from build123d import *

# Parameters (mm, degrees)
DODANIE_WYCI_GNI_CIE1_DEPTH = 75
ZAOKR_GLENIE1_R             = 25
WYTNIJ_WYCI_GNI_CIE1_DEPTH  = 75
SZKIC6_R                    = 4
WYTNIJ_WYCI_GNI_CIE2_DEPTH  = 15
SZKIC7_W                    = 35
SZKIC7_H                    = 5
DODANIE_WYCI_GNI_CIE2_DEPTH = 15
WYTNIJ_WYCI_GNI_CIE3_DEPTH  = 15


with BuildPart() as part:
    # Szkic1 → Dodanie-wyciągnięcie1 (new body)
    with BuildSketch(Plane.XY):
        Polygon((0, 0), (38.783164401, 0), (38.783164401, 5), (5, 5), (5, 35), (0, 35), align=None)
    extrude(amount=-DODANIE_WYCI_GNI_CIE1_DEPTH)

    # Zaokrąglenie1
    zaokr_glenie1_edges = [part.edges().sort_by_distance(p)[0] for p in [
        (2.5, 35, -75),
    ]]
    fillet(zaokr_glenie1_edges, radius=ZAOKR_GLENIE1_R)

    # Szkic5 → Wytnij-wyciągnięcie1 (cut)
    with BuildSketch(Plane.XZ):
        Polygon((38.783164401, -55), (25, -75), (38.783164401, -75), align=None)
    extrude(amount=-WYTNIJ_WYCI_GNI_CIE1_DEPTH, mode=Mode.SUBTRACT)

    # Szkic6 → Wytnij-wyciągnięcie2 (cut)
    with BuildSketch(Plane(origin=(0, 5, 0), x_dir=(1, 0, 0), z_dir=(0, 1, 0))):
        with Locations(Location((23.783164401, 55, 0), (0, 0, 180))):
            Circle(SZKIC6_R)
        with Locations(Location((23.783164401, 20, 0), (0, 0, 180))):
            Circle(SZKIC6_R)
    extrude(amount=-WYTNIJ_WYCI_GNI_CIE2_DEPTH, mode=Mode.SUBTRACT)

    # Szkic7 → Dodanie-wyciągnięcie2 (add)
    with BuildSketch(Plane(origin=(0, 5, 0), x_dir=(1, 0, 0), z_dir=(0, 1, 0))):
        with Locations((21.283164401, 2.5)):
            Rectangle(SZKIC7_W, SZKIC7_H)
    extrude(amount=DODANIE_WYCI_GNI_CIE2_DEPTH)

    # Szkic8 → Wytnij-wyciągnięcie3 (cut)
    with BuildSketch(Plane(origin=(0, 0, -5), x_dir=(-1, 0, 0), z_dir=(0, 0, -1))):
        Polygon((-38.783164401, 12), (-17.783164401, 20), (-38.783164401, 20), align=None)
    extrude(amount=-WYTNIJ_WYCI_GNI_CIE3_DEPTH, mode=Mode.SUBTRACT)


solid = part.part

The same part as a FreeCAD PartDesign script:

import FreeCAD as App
import Part
import Sketcher


def edges_at(feature, points):
    """Names of the edges that pass closest to the given points."""
    edges = feature.Shape.Edges
    near = lambda p: min(range(len(edges)), key=lambda i: edges[i].distToShape(Part.Vertex(*p))[0])
    return sorted({f"Edge{near(p) + 1}" for p in points})


def add_polygon(sketch, points):
    """Adds a closed chain of lines whose ends are joined by coincident constraints."""
    first, n = sketch.GeometryCount, len(points)
    for a, b in zip(points, points[1:] + points[:1]):
        sketch.addGeometry(Part.LineSegment(App.Vector(*a, 0), App.Vector(*b, 0)), False)
    for i in range(n):
        sketch.addConstraint(Sketcher.Constraint("Coincident", first + i, 2, first + (i + 1) % n, 1))

doc = App.newDocument("Part")
body = doc.addObject("PartDesign::Body", "Body")

# Sketch on XY plane
sketch1 = doc.addObject("Sketcher::SketchObject", "Sketch")
body.addObject(sketch1)
sketch1.AttachmentSupport = (doc.XY_Plane, [""])
sketch1.MapMode = "FlatFace"
add_polygon(sketch1, [(0, 0), (39, 0), (39, 5), (5, 5), (5, 35), (0, 35)])  # lines 0-5
sketch1.addConstraint([
    Sketcher.Constraint("Horizontal", 0),
    Sketcher.Constraint("Vertical", 1),
    Sketcher.Constraint("Horizontal", 2),
    Sketcher.Constraint("Vertical", 3),
    Sketcher.Constraint("Horizontal", 4),
    Sketcher.Constraint("Vertical", 5),
    Sketcher.Constraint("Coincident", 5, 2, -1, 1),
    Sketcher.Constraint("Equal", 4, 1),
    Sketcher.Constraint("DistanceX", 4, 2, 4, 1, 5.0),
    Sketcher.Constraint("DistanceY", 3, 1, 3, 2, 30.0),
    Sketcher.Constraint("DistanceX", 0, 1, 0, 2, 38.783164),
])
pad1 = doc.addObject("PartDesign::Pad", "Pad")
body.addObject(pad1)
pad1.Profile = sketch1
pad1.Length = 75
pad1.Reversed = True
doc.recompute()

fillet = doc.addObject("PartDesign::Fillet", "Fillet")
body.addObject(fillet)
fillet.Base = (pad1, edges_at(pad1, [(2.5, 35, -75)]))
fillet.Radius = 25

# Sketch on XZ plane
sketch2 = doc.addObject("Sketcher::SketchObject", "Sketch001")
body.addObject(sketch2)
sketch2.AttachmentSupport = (doc.XZ_Plane, [""])
sketch2.MapMode = "FlatFace"
add_polygon(sketch2, [(39, -55), (25, -75), (39, -75)])  # lines 0-2
sketch2.addConstraint([
    Sketcher.Constraint("Horizontal", 1),
    Sketcher.Constraint("Vertical", 2),
    Sketcher.Constraint("DistanceY", 2, 1, 2, 2, 20.0),
    Sketcher.Constraint("DistanceX", -1, 1, 0, 2, 25.0),
    Sketcher.Constraint("DistanceY", 0, 2, -1, 1, 75.0),
    Sketcher.Constraint("DistanceX", 1, 1, 1, 2, 13.783164),
])
pocket1 = doc.addObject("PartDesign::Pocket", "Pocket")
body.addObject(pocket1)
pocket1.Profile = sketch2
pocket1.Length = 75

# Sketch on XZ plane
sketch3 = doc.addObject("Sketcher::SketchObject", "Sketch002")
body.addObject(sketch3)
sketch3.AttachmentSupport = (doc.XZ_Plane, [""])
sketch3.MapMode = "FlatFace"
sketch3.AttachmentOffset = App.Placement(App.Vector(0, 0, -5), App.Rotation())
sketch3.addGeometry([
    Part.Circle(App.Vector(23.8, -55, 0), App.Vector(0, 0, 1), 4),
    Part.Circle(App.Vector(23.8, -20, 0), App.Vector(0, 0, 1), 4),
], False)
sketch3.addConstraint([
    Sketcher.Constraint("Equal", 0, 1),
    Sketcher.Constraint("Vertical", 0, 3, 1, 3),
    Sketcher.Constraint("Diameter", 0, 8.0),
    Sketcher.Constraint("DistanceY", 0, 3, -1, 1, 55.0),
    Sketcher.Constraint("DistanceY", 1, 3, -1, 1, 20.0),
    Sketcher.Constraint("DistanceX", -1, 1, 0, 3, 23.783164),
])
pocket2 = doc.addObject("PartDesign::Pocket", "Pocket001")
body.addObject(pocket2)
pocket2.Profile = sketch3
pocket2.Length = 15
pocket2.Reversed = True

# Sketch on XZ plane
sketch4 = doc.addObject("Sketcher::SketchObject", "Sketch003")
body.addObject(sketch4)
sketch4.AttachmentSupport = (doc.XZ_Plane, [""])
sketch4.MapMode = "FlatFace"
sketch4.AttachmentOffset = App.Placement(App.Vector(0, 0, -5), App.Rotation())
add_polygon(sketch4, [(4, -5), (4, 0), (39, 0), (39, -5)])  # lines 0-3
sketch4.addConstraint([
    Sketcher.Constraint("Vertical", 0),
    Sketcher.Constraint("Horizontal", 1),
    Sketcher.Constraint("Vertical", 2),
    Sketcher.Constraint("Horizontal", 3),
    Sketcher.Constraint("PointOnObject", 0, 2, -1),
    Sketcher.Constraint("DistanceX", 1, 1, 1, 2, 35.0),
    Sketcher.Constraint("DistanceY", 0, 1, 0, 2, 5.0),
    Sketcher.Constraint("DistanceX", -1, 1, 0, 2, 3.783164),
])
pad2 = doc.addObject("PartDesign::Pad", "Pad001")
body.addObject(pad2)
pad2.Profile = sketch4
pad2.Length = 15
pad2.Reversed = True

# Sketch on XY plane
sketch5 = doc.addObject("Sketcher::SketchObject", "Sketch004")
body.addObject(sketch5)
sketch5.AttachmentSupport = (doc.XY_Plane, [""])
sketch5.MapMode = "FlatFace"
sketch5.AttachmentOffset = App.Placement(App.Vector(0, 0, -5), App.Rotation())
add_polygon(sketch5, [(39, 12), (18, 20), (39, 20)])  # lines 0-2
sketch5.addConstraint([
    Sketcher.Constraint("Horizontal", 1),
    Sketcher.Constraint("Vertical", 2),
    Sketcher.Constraint("DistanceX", 1, 1, 1, 2, 21.0),
    Sketcher.Constraint("DistanceY", 2, 2, 2, 1, 8.0),
    Sketcher.Constraint("DistanceY", -1, 1, 0, 2, 20.0),
    Sketcher.Constraint("DistanceX", -1, 1, 0, 2, 17.783164),
])
pocket3 = doc.addObject("PartDesign::Pocket", "Pocket002")
body.addObject(pocket3)
pocket3.Profile = sketch5
pocket3.Length = 15
pocket3.Reversed = True

doc.recompute()
